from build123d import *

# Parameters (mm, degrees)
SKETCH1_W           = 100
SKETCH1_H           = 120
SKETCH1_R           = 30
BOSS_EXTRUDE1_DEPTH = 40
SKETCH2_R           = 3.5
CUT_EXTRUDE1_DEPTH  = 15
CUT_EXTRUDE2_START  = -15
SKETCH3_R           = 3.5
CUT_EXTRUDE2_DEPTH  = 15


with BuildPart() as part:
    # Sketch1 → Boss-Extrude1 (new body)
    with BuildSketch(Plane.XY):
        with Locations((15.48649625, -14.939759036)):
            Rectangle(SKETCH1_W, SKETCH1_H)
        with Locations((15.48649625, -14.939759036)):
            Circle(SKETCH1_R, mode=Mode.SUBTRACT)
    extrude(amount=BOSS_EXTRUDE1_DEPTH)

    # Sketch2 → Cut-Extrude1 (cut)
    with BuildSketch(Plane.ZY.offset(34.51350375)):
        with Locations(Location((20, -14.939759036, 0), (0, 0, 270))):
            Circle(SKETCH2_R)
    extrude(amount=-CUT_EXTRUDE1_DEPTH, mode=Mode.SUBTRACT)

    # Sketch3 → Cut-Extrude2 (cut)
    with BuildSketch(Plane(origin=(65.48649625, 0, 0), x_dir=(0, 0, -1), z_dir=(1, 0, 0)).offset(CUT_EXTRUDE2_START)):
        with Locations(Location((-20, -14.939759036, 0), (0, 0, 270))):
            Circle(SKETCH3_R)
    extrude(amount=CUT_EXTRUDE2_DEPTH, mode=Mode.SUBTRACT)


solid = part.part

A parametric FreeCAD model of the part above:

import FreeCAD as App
import Part
import Sketcher

V = App.Vector
Q = App.Units.Quantity


def add_polygon(sketch, points):
    """Adds a closed chain of lines whose ends are joined by coincident constraints."""
    first, n = sketch.GeometryCount, len(points)
    for a, b in zip(points, points[1:] + points[:1]):
        sketch.addGeometry(Part.LineSegment(App.Vector(*a, 0), App.Vector(*b, 0)), False)
    for i in range(n):
        sketch.addConstraint(Sketcher.Constraint("Coincident", first + i, 2, first + (i + 1) % n, 1))

doc = App.newDocument("Part")
body = doc.addObject("PartDesign::Body", "Body")

# Sketch on XY plane
sketch1 = body.newObject("Sketcher::SketchObject", "Sketch")
sketch1.AttachmentSupport = (doc.getObject("XY_Plane"), [""])
sketch1.MapMode = "FlatFace"
add_polygon(sketch1, [(-35, 45), (-35, -75), (65, -75), (65, 45)])  # lines 0-3
sketch1.addGeometry(Part.Circle(V(15, -15, 0), V(0, 0, 1), 30), False)  # 4
sketch1.addConstraint(Sketcher.Constraint("Vertical", 0))
sketch1.addConstraint(Sketcher.Constraint("Horizontal", 1))
sketch1.addConstraint(Sketcher.Constraint("Vertical", 2))
sketch1.addConstraint(Sketcher.Constraint("Horizontal", 3))
sketch1.addConstraint(Sketcher.Constraint("Diameter", 4, Q("60 mm")))
sketch1.addConstraint(Sketcher.Constraint("DistanceX", 1, 1, 1, 2, Q("100 mm")))
sketch1.addConstraint(Sketcher.Constraint("DistanceY", 0, 2, 0, 1, Q("120 mm")))
sketch1.addConstraint(Sketcher.Constraint("DistanceX", 0, 2, 4, 3, Q("50 mm")))
sketch1.addConstraint(Sketcher.Constraint("DistanceY", 0, 2, 4, 3, Q("60 mm")))
sketch1.addConstraint(Sketcher.Constraint("DistanceY", 4, 3, -1, 1, Q("14.939759 mm")))
sketch1.addConstraint(Sketcher.Constraint("DistanceX", -1, 1, 4, 3, Q("15.486496 mm")))
pad1 = body.newObject("PartDesign::Pad", "Pad")
pad1.Profile = sketch1
pad1.Length = 40

# Sketch on YZ plane
sketch2 = body.newObject("Sketcher::SketchObject", "Sketch001")
sketch2.AttachmentSupport = (doc.getObject("YZ_Plane"), [""])
sketch2.MapMode = "FlatFace"
sketch2.AttachmentOffset = App.Placement(V(0, 0, -34.513504), App.Rotation())
sketch2.addGeometry(Part.Circle(V(-14.9, 20, 0), V(0, 0, 1), 3.5), False)
sketch2.addConstraint(Sketcher.Constraint("Diameter", 0, Q("7 mm")))
sketch2.addConstraint(Sketcher.Constraint("DistanceY", -1, 1, 0, 3, Q("20 mm")))
sketch2.addConstraint(Sketcher.Constraint("DistanceX", 0, 3, -1, 1, Q("14.939759 mm")))
pocket1 = body.newObject("PartDesign::Pocket", "Pocket")
pocket1.Profile = sketch2
pocket1.Length = 15
pocket1.Reversed = True

# Sketch on YZ plane
sketch3 = body.newObject("Sketcher::SketchObject", "Sketch002")
sketch3.AttachmentSupport = (doc.getObject("YZ_Plane"), [""])
sketch3.MapMode = "FlatFace"
sketch3.AttachmentOffset = App.Placement(V(0, 0, 50.486496), App.Rotation())
sketch3.addGeometry(Part.Circle(V(-14.9, 20, 0), V(0, 0, 1), 3.5), False)
sketch3.addConstraint(Sketcher.Constraint("Diameter", 0, Q("7 mm")))
sketch3.addConstraint(Sketcher.Constraint("DistanceY", -1, 1, 0, 3, Q("20 mm")))
sketch3.addConstraint(Sketcher.Constraint("DistanceX", 0, 3, -1, 1, Q("14.939759 mm")))
pocket2 = body.newObject("PartDesign::Pocket", "Pocket001")
pocket2.Profile = sketch3
pocket2.Length = 15
pocket2.Reversed = True

doc.recompute()
